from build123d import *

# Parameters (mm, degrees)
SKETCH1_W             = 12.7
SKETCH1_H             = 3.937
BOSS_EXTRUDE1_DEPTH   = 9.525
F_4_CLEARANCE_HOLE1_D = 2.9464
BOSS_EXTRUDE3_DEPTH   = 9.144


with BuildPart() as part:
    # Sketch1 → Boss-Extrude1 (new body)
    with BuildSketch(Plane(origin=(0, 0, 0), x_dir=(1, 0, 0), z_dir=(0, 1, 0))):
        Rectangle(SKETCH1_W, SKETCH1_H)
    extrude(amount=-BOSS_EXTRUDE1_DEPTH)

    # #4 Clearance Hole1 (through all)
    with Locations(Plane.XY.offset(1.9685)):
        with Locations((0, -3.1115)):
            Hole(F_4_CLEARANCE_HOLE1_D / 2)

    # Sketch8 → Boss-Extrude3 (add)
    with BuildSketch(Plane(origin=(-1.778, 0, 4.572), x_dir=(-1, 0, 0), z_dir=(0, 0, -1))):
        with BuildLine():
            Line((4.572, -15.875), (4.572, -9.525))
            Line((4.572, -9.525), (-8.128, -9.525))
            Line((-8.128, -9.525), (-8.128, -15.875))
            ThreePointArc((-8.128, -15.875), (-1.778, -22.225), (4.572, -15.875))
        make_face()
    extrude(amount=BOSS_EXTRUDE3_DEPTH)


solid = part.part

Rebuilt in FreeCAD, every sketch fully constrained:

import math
import FreeCAD as App
import Part
import Sketcher

V = App.Vector
Q = App.Units.Quantity

doc = App.newDocument("Part")
body = doc.addObject("PartDesign::Body", "Body")

# Sketch on XZ plane
sketch1 = body.newObject("Sketcher::SketchObject", "Sketch")
sketch1.AttachmentSupport = (doc.getObject("XZ_Plane"), [""])
sketch1.MapMode = "FlatFace"
sketch1.addGeometry([
    Part.LineSegment(V(-6.3, -2, 0), V(-6.3, 2, 0)),
    Part.LineSegment(V(-6.3, 2, 0), V(6.3, 2, 0)),
    Part.LineSegment(V(6.3, 2, 0), V(6.3, -2, 0)),
    Part.LineSegment(V(6.3, -2, 0), V(-6.3, -2, 0)),
], False)
sketch1.addConstraint([
    Sketcher.Constraint("Coincident", 0, 2, 1, 1),
    Sketcher.Constraint("Coincident", 1, 2, 2, 1),
    Sketcher.Constraint("Coincident", 2, 2, 3, 1),
    Sketcher.Constraint("Coincident", 3, 2, 0, 1),
    Sketcher.Constraint("Vertical", 0),
    Sketcher.Constraint("Horizontal", 1),
    Sketcher.Constraint("Vertical", 2),
    Sketcher.Constraint("Horizontal", 3),
    Sketcher.Constraint("Symmetric", 0, 2, 2, 2, -1, 1),
    Sketcher.Constraint("DistanceX", 1, 1, 1, 2, Q("0.5 in")),
    Sketcher.Constraint("DistanceY", 0, 1, 0, 2, Q("0.155 in")),
])
pad1 = body.newObject("PartDesign::Pad", "Pad")
pad1.Profile = sketch1
pad1.Length = Q("0.375 in")

# Sketch on XY plane
sketch2 = body.newObject("Sketcher::SketchObject", "Sketch001")
sketch2.AttachmentSupport = (doc.getObject("XY_Plane"), [""])
sketch2.MapMode = "FlatFace"
sketch2.AttachmentOffset = App.Placement(V(0, 0, 0.0775 * 25.4), App.Rotation())
sketch2.addGeometry(Part.Circle(V(0, -3.1, 0), V(0, 0, 1), 1.5), False)
sketch2.addConstraint([
    Sketcher.Constraint("PointOnObject", 0, 3, -2),
    Sketcher.Constraint("Diameter", 0, Q("0.116 in")),
    Sketcher.Constraint("DistanceY", 0, 3, -1, 1, Q("0.1225 in")),
])
doc.recompute()
hole = body.newObject("PartDesign::Hole", "Hole")
hole.Profile = sketch2
hole.ThreadType = "None"
hole.Diameter = Q("0.116 in")
hole.DepthType = "ThroughAll"

# Sketch on XY plane
sketch3 = body.newObject("Sketcher::SketchObject", "Sketch002")
sketch3.AttachmentSupport = (doc.getObject("XY_Plane"), [""])
sketch3.MapMode = "FlatFace"
sketch3.AttachmentOffset = App.Placement(V(0, 0, 0.18 * 25.4), App.Rotation())
sketch3.addGeometry([
    Part.LineSegment(V(-6, -16, 0), V(-6, -10, 0)),
    Part.LineSegment(V(-6, -10, 0), V(6, -10, 0)),
    Part.LineSegment(V(6, -10, 0), V(6, -16, 0)),
    Part.ArcOfCircle(Part.Circle(V(0, -16, 0), V(0, 0, 1), 6), math.radians(180), math.radians(360)),
], False)
sketch3.addConstraint([
    Sketcher.Constraint("Coincident", 0, 2, 1, 1),
    Sketcher.Constraint("Coincident", 1, 2, 2, 1),
    Sketcher.Constraint("Tangent", 2, 2, 3, 2),
    Sketcher.Constraint("Tangent", 3, 1, 0, 1),
    Sketcher.Constraint("Vertical", 0),
    Sketcher.Constraint("Horizontal", 1),
    Sketcher.Constraint("Vertical", 2),
    Sketcher.Constraint("PointOnObject", 3, 3, -2),
    Sketcher.Constraint("Radius", 3, Q("0.25 in")),
    Sketcher.Constraint("DistanceY", 0, 1, 0, 2, Q("0.25 in")),
    Sketcher.Constraint("DistanceY", 3, 3, -1, 1, Q("0.625 in")),
])
pad2 = body.newObject("PartDesign::Pad", "Pad001")
pad2.Profile = sketch3
pad2.Length = Q("0.36 in")
pad2.Reversed = True

doc.recompute()
